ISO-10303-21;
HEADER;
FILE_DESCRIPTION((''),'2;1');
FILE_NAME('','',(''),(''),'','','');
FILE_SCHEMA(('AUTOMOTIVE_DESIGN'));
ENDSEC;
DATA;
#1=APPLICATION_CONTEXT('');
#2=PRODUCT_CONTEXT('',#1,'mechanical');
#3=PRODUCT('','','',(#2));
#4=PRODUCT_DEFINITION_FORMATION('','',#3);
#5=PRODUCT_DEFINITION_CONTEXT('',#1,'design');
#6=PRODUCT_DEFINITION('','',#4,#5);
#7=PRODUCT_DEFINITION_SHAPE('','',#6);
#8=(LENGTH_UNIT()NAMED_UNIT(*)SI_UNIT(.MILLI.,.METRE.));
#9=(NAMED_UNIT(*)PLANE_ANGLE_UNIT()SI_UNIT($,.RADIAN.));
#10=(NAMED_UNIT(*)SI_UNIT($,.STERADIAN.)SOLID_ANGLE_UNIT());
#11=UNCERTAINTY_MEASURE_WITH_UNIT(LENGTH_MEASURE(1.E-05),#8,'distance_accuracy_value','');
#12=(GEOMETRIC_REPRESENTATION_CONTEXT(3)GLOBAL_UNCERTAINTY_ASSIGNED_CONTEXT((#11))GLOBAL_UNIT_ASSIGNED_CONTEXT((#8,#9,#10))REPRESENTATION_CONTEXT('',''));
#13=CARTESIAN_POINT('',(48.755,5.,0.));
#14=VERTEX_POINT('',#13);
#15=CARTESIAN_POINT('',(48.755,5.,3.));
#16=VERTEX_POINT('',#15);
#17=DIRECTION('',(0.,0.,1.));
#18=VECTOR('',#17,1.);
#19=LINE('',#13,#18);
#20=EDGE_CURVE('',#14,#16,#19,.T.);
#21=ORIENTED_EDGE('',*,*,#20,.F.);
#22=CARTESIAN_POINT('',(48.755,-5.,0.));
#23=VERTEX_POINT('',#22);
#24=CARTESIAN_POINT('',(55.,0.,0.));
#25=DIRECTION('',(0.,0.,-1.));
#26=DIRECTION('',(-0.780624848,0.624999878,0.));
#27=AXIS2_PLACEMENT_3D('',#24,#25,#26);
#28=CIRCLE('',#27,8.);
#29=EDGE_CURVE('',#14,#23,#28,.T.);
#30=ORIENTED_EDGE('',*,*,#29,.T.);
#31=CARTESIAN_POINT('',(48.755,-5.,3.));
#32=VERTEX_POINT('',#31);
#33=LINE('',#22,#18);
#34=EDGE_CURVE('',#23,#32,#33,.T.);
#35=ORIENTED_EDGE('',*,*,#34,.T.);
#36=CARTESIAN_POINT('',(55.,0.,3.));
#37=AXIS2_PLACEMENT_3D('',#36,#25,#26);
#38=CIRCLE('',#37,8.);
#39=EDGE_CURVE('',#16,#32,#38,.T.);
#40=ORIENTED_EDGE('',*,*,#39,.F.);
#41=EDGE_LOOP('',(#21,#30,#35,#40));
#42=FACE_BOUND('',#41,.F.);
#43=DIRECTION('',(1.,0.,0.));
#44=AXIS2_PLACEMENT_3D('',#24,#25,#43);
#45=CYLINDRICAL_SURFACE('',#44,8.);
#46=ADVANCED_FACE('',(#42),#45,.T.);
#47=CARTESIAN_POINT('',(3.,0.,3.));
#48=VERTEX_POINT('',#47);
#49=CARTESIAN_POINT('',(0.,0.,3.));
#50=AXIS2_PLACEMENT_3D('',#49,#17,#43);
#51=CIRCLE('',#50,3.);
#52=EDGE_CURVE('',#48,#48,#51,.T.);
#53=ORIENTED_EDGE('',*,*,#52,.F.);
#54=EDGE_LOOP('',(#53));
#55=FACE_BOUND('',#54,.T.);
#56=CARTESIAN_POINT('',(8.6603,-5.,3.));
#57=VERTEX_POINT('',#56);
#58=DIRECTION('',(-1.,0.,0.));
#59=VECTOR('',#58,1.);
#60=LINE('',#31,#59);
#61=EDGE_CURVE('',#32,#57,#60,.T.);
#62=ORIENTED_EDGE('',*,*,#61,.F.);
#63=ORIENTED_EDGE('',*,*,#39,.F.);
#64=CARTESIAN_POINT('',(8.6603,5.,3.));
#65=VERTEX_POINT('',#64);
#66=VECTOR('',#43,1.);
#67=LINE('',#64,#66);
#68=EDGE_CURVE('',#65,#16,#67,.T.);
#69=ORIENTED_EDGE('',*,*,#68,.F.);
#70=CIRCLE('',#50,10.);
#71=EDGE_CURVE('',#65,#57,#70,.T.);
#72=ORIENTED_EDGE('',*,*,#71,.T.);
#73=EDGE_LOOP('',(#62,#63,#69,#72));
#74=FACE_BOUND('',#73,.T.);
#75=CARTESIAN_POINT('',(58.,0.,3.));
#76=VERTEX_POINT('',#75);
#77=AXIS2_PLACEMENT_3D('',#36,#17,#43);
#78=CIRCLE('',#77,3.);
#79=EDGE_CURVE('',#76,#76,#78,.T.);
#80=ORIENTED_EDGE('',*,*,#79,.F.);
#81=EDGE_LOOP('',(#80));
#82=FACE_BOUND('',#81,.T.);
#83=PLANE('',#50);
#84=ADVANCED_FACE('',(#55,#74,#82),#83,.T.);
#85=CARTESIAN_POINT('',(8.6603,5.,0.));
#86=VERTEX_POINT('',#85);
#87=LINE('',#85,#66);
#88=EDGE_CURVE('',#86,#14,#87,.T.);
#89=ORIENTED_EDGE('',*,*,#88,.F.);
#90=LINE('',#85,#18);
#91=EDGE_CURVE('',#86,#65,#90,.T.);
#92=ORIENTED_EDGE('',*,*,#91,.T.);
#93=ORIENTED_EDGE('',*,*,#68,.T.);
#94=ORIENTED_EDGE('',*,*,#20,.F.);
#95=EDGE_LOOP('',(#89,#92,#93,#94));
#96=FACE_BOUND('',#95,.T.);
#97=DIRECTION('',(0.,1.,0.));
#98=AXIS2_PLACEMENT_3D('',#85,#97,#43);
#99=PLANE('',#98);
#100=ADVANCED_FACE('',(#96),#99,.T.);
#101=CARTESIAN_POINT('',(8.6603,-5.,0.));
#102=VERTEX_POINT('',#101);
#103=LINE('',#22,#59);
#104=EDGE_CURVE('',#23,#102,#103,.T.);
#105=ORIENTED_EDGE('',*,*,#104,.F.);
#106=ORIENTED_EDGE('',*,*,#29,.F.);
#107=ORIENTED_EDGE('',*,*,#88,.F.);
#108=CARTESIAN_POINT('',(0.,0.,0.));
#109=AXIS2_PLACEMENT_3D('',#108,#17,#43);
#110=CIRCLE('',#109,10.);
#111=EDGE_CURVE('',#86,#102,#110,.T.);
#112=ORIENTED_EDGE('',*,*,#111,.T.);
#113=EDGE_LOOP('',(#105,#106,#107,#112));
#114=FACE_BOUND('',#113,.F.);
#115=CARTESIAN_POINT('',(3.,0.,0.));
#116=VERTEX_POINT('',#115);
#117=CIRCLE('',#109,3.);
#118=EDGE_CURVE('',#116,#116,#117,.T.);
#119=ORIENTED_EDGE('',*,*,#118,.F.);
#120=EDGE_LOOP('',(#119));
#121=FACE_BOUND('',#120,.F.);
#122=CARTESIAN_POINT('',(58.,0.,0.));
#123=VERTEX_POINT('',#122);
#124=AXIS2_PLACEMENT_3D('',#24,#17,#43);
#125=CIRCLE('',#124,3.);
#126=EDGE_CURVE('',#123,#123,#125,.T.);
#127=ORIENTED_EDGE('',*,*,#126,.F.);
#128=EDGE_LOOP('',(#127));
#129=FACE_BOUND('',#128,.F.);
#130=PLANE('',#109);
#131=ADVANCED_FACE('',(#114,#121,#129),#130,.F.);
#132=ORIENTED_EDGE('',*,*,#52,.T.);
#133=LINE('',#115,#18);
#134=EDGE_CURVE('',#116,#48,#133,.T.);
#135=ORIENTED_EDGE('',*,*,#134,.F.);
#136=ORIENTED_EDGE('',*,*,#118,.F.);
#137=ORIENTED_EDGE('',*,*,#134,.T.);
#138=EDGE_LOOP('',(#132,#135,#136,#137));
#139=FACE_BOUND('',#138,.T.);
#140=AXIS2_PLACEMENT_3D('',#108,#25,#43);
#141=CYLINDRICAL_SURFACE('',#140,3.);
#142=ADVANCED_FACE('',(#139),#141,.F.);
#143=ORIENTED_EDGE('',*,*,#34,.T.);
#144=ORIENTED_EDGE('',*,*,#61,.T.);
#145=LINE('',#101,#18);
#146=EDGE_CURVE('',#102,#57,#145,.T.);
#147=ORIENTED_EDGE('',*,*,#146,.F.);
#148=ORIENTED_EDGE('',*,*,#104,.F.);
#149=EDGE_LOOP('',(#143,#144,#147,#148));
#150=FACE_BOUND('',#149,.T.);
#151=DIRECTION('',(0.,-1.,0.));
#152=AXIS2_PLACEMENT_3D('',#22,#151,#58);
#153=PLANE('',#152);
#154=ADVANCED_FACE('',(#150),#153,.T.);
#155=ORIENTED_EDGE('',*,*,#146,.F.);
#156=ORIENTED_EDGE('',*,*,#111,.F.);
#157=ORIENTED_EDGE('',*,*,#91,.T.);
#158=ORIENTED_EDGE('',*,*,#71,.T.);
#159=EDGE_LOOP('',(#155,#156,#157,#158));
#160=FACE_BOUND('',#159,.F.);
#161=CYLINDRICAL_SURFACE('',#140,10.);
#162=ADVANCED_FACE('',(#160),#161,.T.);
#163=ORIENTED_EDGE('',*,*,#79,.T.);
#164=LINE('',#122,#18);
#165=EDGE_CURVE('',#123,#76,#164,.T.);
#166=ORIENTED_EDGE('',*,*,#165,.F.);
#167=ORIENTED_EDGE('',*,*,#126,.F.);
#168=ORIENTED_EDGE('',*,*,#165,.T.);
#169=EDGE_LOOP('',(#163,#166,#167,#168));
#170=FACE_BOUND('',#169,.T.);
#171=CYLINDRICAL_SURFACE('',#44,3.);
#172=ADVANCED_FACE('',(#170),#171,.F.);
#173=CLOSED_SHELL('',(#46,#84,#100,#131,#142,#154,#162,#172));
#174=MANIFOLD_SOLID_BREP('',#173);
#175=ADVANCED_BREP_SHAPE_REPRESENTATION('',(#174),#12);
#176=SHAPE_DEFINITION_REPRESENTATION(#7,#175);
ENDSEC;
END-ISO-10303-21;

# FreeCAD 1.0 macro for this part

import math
import FreeCAD as App
import Part
import Sketcher
from FreeCAD import Vector

doc = App.newDocument("Part")
params = doc.addObject("Spreadsheet::Sheet", "Params")
for row, (alias, value) in enumerate([
    ("sketch1_diameter", "6 mm"),
    ("sketch1_radius", "8 mm"),
    ("sketch1_radius2", "10 mm"),
    ("pad1_length", "3 mm"),
], start=1):
    params.set(f"A{row}", alias)
    params.set(f"B{row}", "=" + value)
    params.setAlias(f"B{row}", alias)

body = doc.addObject("PartDesign::Body", "Body")

# Sketch on XY plane
sketch1 = body.newObject("Sketcher::SketchObject", "Sketch")
sketch1.AttachmentSupport = (doc.getObject("XY_Plane"), [""])
sketch1.MapMode = "FlatFace"
sketch1.addGeometry([
    Part.LineSegment(Vector(8.6603, -5, 0), Vector(48.755, -5, 0)),  # 0
    Part.ArcOfCircle(Part.Circle(Vector(55, 0, 0), Vector(0, 0, 1), 8), math.radians(-141.317822), math.radians(141.317822)),  # 1
    Part.LineSegment(Vector(48.755, 5, 0), Vector(8.6603, 5, 0)),  # 2
    Part.ArcOfCircle(Part.Circle(Vector(0, 0, 0), Vector(0, 0, 1), 10), math.radians(29.999868), math.radians(330.000132)),  # 3
    Part.Circle(Vector(0, 0, 0), Vector(0, 0, 1), 3),  # 4
    Part.Circle(Vector(55, 0, 0), Vector(0, 0, 1), 3),  # 5
], False)
sketch1.addConstraint([
    Sketcher.Constraint("Coincident", 0, 2, 1, 1),
    Sketcher.Constraint("Coincident", 1, 2, 2, 1),
    Sketcher.Constraint("Coincident", 2, 2, 3, 1),
    Sketcher.Constraint("Coincident", 3, 2, 0, 1),
    Sketcher.Constraint("Horizontal", 0),
    Sketcher.Constraint("Horizontal", 2),
    Sketcher.Constraint("Coincident", 3, 3, -1, 1),
    Sketcher.Constraint("Coincident", 4, 3, -1, 1),
    Sketcher.Constraint("Coincident", 5, 3, 1, 3),
    Sketcher.Constraint("Equal", 4, 5),
    Sketcher.Constraint("Symmetric", 0, 2, 1, 2, -1),
    Sketcher.Constraint("Diameter", 4, 6.0),
    Sketcher.Constraint("Radius", 1, 8.0),
    Sketcher.Constraint("Radius", 3, 10.0),
    Sketcher.Constraint("DistanceX", -1, 1, 1, 3, 55.0),
    Sketcher.Constraint("DistanceY", 0, 2, 1, 2, 10.0),
])
sketch1.setExpression("Constraints[11]", "Params.sketch1_diameter")
sketch1.setExpression("Constraints[12]", "Params.sketch1_radius")
sketch1.setExpression("Constraints[13]", "Params.sketch1_radius2")
pad1 = body.newObject("PartDesign::Pad", "Pad")
pad1.Profile = sketch1
pad1.setExpression("Length", "Params.pad1_length")

doc.recompute()
